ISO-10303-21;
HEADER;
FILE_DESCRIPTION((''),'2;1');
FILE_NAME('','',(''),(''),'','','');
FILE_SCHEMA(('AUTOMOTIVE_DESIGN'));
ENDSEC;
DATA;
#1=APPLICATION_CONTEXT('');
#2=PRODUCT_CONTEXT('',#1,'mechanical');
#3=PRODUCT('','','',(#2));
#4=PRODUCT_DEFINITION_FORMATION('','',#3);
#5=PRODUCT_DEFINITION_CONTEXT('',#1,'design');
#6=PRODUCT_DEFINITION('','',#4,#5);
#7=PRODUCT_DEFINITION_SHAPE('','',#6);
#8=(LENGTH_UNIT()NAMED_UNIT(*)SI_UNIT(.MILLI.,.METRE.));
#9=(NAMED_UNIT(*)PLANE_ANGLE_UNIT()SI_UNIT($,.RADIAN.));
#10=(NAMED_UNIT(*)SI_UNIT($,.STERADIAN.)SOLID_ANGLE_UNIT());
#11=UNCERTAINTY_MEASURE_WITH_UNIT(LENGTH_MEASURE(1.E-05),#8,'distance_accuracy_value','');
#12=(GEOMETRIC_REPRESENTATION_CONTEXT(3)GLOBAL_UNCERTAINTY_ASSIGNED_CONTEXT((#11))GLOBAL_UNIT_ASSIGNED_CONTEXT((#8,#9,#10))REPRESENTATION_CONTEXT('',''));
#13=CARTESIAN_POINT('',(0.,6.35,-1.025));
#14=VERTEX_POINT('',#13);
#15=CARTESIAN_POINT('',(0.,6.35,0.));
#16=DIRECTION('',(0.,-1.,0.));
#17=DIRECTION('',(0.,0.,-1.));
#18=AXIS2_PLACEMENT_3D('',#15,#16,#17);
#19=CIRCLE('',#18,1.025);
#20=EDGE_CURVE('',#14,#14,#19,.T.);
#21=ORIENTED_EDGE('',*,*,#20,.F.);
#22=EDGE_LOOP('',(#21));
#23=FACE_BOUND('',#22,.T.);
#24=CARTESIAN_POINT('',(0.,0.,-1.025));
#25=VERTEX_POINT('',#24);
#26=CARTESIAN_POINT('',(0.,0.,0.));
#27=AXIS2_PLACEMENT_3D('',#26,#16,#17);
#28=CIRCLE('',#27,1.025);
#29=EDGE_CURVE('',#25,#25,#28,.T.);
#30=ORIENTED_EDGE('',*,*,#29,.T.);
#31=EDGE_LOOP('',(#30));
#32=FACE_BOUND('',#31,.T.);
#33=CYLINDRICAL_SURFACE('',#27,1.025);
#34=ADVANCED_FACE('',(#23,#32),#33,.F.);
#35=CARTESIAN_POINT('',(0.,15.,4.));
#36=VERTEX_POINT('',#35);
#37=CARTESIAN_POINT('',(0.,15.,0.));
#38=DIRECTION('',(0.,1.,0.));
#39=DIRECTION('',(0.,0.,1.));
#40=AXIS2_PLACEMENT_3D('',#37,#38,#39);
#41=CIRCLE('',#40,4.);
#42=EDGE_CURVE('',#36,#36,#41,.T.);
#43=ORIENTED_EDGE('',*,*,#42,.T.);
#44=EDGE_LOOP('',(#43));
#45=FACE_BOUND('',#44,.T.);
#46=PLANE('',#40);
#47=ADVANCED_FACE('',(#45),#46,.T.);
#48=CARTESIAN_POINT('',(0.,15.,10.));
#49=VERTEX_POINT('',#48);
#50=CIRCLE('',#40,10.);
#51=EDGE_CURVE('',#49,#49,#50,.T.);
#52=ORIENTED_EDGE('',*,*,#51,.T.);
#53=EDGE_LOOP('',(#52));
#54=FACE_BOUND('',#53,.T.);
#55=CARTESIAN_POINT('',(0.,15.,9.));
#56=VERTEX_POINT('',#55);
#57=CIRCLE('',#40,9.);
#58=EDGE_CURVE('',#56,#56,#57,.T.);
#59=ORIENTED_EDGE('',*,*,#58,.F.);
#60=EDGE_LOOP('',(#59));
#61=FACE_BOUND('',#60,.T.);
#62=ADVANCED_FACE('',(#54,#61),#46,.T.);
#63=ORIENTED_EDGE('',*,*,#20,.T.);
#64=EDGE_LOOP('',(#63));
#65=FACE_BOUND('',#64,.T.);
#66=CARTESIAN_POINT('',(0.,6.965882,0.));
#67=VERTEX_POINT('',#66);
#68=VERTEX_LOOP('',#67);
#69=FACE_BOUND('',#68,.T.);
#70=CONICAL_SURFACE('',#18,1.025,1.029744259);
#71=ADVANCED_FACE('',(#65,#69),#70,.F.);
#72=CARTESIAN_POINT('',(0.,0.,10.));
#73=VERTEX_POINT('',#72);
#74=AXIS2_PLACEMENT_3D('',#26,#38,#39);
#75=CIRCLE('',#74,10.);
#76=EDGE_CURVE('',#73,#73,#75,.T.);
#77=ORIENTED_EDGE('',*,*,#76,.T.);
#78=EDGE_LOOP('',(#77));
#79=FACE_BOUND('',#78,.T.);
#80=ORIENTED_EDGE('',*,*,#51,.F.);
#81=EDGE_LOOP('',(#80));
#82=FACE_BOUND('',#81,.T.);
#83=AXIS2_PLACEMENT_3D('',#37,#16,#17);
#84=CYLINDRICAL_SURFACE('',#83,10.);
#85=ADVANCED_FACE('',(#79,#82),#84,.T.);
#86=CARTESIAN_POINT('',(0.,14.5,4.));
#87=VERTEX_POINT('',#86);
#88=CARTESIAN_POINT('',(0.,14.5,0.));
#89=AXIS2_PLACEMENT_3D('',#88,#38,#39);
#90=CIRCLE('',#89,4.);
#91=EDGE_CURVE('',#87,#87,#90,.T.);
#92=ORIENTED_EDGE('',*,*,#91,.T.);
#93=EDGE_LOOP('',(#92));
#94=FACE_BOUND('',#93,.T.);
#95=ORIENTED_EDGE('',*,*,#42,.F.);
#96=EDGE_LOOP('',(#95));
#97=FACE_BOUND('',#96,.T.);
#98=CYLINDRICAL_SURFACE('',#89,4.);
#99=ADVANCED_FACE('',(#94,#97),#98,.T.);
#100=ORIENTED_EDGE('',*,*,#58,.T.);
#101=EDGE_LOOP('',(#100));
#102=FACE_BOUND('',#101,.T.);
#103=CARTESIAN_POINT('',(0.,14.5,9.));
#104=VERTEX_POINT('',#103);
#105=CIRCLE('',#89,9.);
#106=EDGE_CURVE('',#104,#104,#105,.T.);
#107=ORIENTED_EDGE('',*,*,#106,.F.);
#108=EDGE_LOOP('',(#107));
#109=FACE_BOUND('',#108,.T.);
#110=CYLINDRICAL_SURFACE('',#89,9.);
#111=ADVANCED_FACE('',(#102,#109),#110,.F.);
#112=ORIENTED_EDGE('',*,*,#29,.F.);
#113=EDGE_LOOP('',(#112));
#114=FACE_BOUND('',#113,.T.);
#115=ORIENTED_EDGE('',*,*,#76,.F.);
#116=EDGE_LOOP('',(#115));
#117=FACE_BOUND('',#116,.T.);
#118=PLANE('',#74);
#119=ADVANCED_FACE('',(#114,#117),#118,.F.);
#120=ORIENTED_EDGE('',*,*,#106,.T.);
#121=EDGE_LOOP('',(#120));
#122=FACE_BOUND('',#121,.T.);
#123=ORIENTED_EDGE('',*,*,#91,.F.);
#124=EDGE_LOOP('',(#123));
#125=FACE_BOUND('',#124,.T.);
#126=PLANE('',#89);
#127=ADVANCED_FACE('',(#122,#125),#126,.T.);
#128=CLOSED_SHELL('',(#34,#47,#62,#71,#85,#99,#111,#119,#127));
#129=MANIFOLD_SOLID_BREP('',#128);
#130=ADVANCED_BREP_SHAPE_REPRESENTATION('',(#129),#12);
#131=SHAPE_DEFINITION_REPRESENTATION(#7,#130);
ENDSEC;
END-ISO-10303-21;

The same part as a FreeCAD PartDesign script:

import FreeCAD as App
import Part
import Sketcher

doc = App.newDocument("Part")
params = doc.addObject("Spreadsheet::Sheet", "Params")
for row, (alias, value) in enumerate([
    ("sketch1_diameter", "20 mm"),
    ("pad1_length", "15 mm"),
    ("sketch2_diameter", "18 mm"),
    ("sketch2_diameter2", "8 mm"),
    ("pocket1_length", "0.5 mm"),
    ("sketch3_diameter", "2.05 mm"),
    ("hole_diameter", "2.05 mm"),
    ("hole_depth", "6.35 mm"),
], start=1):
    params.set(f"A{row}", alias)
    params.set(f"B{row}", "=" + value)
    params.setAlias(f"B{row}", alias)

body = doc.addObject("PartDesign::Body", "Body")

# Sketch on XZ plane
sketch1 = doc.addObject("Sketcher::SketchObject", "Sketch")
body.addObject(sketch1)
sketch1.AttachmentSupport = (doc.XZ_Plane, [""])
sketch1.MapMode = "FlatFace"
sketch1.addGeometry(Part.Circle(App.Vector(0, 0, 0), App.Vector(0, 0, 1), 10), False)
sketch1.addConstraint([
    Sketcher.Constraint("Coincident", 0, 3, -1, 1),
    Sketcher.Constraint("Diameter", 0, 20.0),
])
sketch1.setExpression("Constraints[1]", "Params.sketch1_diameter")
pad1 = doc.addObject("PartDesign::Pad", "Pad")
body.addObject(pad1)
pad1.Profile = sketch1
pad1.setExpression("Length", "Params.pad1_length")
pad1.Reversed = True

# Sketch on XZ plane
sketch2 = doc.addObject("Sketcher::SketchObject", "Sketch001")
body.addObject(sketch2)
sketch2.AttachmentSupport = (doc.XZ_Plane, [""])
sketch2.MapMode = "FlatFace"
sketch2.AttachmentOffset = App.Placement(App.Vector(0, 0, -15), App.Rotation())
sketch2.addGeometry([
    Part.Circle(App.Vector(0, 0, 0), App.Vector(0, 0, 1), 9),
    Part.Circle(App.Vector(0, 0, 0), App.Vector(0, 0, 1), 4),
], False)
sketch2.addConstraint([
    Sketcher.Constraint("Coincident", 0, 3, -1, 1),
    Sketcher.Constraint("Coincident", 1, 3, -1, 1),
    Sketcher.Constraint("Diameter", 0, 18.0),
    Sketcher.Constraint("Diameter", 1, 8.0),
])
sketch2.setExpression("Constraints[2]", "Params.sketch2_diameter")
sketch2.setExpression("Constraints[3]", "Params.sketch2_diameter2")
pocket1 = doc.addObject("PartDesign::Pocket", "Pocket")
body.addObject(pocket1)
pocket1.Profile = sketch2
pocket1.setExpression("Length", "Params.pocket1_length")
pocket1.Reversed = True

# Sketch on XZ plane
sketch3 = doc.addObject("Sketcher::SketchObject", "Sketch002")
body.addObject(sketch3)
sketch3.AttachmentSupport = (doc.XZ_Plane, [""])
sketch3.MapMode = "FlatFace"
sketch3.addGeometry(Part.Circle(App.Vector(0, 0, 0), App.Vector(0, 0, 1), 1), False)
sketch3.addConstraint([
    Sketcher.Constraint("Coincident", 0, 3, -1, 1),
    Sketcher.Constraint("Diameter", 0, 2.05),
])
sketch3.setExpression("Constraints[1]", "Params.sketch3_diameter")
doc.recompute()
hole = doc.addObject("PartDesign::Hole", "Hole")
body.addObject(hole)
hole.Profile = sketch3
hole.ThreadType = "None"
hole.setExpression("Diameter", "Params.hole_diameter")
hole.DepthType = "Dimension"
hole.setExpression("Depth", "Params.hole_depth")
hole.DrillPoint = "Angled"
hole.DrillPointAngle = 118

doc.recompute()
